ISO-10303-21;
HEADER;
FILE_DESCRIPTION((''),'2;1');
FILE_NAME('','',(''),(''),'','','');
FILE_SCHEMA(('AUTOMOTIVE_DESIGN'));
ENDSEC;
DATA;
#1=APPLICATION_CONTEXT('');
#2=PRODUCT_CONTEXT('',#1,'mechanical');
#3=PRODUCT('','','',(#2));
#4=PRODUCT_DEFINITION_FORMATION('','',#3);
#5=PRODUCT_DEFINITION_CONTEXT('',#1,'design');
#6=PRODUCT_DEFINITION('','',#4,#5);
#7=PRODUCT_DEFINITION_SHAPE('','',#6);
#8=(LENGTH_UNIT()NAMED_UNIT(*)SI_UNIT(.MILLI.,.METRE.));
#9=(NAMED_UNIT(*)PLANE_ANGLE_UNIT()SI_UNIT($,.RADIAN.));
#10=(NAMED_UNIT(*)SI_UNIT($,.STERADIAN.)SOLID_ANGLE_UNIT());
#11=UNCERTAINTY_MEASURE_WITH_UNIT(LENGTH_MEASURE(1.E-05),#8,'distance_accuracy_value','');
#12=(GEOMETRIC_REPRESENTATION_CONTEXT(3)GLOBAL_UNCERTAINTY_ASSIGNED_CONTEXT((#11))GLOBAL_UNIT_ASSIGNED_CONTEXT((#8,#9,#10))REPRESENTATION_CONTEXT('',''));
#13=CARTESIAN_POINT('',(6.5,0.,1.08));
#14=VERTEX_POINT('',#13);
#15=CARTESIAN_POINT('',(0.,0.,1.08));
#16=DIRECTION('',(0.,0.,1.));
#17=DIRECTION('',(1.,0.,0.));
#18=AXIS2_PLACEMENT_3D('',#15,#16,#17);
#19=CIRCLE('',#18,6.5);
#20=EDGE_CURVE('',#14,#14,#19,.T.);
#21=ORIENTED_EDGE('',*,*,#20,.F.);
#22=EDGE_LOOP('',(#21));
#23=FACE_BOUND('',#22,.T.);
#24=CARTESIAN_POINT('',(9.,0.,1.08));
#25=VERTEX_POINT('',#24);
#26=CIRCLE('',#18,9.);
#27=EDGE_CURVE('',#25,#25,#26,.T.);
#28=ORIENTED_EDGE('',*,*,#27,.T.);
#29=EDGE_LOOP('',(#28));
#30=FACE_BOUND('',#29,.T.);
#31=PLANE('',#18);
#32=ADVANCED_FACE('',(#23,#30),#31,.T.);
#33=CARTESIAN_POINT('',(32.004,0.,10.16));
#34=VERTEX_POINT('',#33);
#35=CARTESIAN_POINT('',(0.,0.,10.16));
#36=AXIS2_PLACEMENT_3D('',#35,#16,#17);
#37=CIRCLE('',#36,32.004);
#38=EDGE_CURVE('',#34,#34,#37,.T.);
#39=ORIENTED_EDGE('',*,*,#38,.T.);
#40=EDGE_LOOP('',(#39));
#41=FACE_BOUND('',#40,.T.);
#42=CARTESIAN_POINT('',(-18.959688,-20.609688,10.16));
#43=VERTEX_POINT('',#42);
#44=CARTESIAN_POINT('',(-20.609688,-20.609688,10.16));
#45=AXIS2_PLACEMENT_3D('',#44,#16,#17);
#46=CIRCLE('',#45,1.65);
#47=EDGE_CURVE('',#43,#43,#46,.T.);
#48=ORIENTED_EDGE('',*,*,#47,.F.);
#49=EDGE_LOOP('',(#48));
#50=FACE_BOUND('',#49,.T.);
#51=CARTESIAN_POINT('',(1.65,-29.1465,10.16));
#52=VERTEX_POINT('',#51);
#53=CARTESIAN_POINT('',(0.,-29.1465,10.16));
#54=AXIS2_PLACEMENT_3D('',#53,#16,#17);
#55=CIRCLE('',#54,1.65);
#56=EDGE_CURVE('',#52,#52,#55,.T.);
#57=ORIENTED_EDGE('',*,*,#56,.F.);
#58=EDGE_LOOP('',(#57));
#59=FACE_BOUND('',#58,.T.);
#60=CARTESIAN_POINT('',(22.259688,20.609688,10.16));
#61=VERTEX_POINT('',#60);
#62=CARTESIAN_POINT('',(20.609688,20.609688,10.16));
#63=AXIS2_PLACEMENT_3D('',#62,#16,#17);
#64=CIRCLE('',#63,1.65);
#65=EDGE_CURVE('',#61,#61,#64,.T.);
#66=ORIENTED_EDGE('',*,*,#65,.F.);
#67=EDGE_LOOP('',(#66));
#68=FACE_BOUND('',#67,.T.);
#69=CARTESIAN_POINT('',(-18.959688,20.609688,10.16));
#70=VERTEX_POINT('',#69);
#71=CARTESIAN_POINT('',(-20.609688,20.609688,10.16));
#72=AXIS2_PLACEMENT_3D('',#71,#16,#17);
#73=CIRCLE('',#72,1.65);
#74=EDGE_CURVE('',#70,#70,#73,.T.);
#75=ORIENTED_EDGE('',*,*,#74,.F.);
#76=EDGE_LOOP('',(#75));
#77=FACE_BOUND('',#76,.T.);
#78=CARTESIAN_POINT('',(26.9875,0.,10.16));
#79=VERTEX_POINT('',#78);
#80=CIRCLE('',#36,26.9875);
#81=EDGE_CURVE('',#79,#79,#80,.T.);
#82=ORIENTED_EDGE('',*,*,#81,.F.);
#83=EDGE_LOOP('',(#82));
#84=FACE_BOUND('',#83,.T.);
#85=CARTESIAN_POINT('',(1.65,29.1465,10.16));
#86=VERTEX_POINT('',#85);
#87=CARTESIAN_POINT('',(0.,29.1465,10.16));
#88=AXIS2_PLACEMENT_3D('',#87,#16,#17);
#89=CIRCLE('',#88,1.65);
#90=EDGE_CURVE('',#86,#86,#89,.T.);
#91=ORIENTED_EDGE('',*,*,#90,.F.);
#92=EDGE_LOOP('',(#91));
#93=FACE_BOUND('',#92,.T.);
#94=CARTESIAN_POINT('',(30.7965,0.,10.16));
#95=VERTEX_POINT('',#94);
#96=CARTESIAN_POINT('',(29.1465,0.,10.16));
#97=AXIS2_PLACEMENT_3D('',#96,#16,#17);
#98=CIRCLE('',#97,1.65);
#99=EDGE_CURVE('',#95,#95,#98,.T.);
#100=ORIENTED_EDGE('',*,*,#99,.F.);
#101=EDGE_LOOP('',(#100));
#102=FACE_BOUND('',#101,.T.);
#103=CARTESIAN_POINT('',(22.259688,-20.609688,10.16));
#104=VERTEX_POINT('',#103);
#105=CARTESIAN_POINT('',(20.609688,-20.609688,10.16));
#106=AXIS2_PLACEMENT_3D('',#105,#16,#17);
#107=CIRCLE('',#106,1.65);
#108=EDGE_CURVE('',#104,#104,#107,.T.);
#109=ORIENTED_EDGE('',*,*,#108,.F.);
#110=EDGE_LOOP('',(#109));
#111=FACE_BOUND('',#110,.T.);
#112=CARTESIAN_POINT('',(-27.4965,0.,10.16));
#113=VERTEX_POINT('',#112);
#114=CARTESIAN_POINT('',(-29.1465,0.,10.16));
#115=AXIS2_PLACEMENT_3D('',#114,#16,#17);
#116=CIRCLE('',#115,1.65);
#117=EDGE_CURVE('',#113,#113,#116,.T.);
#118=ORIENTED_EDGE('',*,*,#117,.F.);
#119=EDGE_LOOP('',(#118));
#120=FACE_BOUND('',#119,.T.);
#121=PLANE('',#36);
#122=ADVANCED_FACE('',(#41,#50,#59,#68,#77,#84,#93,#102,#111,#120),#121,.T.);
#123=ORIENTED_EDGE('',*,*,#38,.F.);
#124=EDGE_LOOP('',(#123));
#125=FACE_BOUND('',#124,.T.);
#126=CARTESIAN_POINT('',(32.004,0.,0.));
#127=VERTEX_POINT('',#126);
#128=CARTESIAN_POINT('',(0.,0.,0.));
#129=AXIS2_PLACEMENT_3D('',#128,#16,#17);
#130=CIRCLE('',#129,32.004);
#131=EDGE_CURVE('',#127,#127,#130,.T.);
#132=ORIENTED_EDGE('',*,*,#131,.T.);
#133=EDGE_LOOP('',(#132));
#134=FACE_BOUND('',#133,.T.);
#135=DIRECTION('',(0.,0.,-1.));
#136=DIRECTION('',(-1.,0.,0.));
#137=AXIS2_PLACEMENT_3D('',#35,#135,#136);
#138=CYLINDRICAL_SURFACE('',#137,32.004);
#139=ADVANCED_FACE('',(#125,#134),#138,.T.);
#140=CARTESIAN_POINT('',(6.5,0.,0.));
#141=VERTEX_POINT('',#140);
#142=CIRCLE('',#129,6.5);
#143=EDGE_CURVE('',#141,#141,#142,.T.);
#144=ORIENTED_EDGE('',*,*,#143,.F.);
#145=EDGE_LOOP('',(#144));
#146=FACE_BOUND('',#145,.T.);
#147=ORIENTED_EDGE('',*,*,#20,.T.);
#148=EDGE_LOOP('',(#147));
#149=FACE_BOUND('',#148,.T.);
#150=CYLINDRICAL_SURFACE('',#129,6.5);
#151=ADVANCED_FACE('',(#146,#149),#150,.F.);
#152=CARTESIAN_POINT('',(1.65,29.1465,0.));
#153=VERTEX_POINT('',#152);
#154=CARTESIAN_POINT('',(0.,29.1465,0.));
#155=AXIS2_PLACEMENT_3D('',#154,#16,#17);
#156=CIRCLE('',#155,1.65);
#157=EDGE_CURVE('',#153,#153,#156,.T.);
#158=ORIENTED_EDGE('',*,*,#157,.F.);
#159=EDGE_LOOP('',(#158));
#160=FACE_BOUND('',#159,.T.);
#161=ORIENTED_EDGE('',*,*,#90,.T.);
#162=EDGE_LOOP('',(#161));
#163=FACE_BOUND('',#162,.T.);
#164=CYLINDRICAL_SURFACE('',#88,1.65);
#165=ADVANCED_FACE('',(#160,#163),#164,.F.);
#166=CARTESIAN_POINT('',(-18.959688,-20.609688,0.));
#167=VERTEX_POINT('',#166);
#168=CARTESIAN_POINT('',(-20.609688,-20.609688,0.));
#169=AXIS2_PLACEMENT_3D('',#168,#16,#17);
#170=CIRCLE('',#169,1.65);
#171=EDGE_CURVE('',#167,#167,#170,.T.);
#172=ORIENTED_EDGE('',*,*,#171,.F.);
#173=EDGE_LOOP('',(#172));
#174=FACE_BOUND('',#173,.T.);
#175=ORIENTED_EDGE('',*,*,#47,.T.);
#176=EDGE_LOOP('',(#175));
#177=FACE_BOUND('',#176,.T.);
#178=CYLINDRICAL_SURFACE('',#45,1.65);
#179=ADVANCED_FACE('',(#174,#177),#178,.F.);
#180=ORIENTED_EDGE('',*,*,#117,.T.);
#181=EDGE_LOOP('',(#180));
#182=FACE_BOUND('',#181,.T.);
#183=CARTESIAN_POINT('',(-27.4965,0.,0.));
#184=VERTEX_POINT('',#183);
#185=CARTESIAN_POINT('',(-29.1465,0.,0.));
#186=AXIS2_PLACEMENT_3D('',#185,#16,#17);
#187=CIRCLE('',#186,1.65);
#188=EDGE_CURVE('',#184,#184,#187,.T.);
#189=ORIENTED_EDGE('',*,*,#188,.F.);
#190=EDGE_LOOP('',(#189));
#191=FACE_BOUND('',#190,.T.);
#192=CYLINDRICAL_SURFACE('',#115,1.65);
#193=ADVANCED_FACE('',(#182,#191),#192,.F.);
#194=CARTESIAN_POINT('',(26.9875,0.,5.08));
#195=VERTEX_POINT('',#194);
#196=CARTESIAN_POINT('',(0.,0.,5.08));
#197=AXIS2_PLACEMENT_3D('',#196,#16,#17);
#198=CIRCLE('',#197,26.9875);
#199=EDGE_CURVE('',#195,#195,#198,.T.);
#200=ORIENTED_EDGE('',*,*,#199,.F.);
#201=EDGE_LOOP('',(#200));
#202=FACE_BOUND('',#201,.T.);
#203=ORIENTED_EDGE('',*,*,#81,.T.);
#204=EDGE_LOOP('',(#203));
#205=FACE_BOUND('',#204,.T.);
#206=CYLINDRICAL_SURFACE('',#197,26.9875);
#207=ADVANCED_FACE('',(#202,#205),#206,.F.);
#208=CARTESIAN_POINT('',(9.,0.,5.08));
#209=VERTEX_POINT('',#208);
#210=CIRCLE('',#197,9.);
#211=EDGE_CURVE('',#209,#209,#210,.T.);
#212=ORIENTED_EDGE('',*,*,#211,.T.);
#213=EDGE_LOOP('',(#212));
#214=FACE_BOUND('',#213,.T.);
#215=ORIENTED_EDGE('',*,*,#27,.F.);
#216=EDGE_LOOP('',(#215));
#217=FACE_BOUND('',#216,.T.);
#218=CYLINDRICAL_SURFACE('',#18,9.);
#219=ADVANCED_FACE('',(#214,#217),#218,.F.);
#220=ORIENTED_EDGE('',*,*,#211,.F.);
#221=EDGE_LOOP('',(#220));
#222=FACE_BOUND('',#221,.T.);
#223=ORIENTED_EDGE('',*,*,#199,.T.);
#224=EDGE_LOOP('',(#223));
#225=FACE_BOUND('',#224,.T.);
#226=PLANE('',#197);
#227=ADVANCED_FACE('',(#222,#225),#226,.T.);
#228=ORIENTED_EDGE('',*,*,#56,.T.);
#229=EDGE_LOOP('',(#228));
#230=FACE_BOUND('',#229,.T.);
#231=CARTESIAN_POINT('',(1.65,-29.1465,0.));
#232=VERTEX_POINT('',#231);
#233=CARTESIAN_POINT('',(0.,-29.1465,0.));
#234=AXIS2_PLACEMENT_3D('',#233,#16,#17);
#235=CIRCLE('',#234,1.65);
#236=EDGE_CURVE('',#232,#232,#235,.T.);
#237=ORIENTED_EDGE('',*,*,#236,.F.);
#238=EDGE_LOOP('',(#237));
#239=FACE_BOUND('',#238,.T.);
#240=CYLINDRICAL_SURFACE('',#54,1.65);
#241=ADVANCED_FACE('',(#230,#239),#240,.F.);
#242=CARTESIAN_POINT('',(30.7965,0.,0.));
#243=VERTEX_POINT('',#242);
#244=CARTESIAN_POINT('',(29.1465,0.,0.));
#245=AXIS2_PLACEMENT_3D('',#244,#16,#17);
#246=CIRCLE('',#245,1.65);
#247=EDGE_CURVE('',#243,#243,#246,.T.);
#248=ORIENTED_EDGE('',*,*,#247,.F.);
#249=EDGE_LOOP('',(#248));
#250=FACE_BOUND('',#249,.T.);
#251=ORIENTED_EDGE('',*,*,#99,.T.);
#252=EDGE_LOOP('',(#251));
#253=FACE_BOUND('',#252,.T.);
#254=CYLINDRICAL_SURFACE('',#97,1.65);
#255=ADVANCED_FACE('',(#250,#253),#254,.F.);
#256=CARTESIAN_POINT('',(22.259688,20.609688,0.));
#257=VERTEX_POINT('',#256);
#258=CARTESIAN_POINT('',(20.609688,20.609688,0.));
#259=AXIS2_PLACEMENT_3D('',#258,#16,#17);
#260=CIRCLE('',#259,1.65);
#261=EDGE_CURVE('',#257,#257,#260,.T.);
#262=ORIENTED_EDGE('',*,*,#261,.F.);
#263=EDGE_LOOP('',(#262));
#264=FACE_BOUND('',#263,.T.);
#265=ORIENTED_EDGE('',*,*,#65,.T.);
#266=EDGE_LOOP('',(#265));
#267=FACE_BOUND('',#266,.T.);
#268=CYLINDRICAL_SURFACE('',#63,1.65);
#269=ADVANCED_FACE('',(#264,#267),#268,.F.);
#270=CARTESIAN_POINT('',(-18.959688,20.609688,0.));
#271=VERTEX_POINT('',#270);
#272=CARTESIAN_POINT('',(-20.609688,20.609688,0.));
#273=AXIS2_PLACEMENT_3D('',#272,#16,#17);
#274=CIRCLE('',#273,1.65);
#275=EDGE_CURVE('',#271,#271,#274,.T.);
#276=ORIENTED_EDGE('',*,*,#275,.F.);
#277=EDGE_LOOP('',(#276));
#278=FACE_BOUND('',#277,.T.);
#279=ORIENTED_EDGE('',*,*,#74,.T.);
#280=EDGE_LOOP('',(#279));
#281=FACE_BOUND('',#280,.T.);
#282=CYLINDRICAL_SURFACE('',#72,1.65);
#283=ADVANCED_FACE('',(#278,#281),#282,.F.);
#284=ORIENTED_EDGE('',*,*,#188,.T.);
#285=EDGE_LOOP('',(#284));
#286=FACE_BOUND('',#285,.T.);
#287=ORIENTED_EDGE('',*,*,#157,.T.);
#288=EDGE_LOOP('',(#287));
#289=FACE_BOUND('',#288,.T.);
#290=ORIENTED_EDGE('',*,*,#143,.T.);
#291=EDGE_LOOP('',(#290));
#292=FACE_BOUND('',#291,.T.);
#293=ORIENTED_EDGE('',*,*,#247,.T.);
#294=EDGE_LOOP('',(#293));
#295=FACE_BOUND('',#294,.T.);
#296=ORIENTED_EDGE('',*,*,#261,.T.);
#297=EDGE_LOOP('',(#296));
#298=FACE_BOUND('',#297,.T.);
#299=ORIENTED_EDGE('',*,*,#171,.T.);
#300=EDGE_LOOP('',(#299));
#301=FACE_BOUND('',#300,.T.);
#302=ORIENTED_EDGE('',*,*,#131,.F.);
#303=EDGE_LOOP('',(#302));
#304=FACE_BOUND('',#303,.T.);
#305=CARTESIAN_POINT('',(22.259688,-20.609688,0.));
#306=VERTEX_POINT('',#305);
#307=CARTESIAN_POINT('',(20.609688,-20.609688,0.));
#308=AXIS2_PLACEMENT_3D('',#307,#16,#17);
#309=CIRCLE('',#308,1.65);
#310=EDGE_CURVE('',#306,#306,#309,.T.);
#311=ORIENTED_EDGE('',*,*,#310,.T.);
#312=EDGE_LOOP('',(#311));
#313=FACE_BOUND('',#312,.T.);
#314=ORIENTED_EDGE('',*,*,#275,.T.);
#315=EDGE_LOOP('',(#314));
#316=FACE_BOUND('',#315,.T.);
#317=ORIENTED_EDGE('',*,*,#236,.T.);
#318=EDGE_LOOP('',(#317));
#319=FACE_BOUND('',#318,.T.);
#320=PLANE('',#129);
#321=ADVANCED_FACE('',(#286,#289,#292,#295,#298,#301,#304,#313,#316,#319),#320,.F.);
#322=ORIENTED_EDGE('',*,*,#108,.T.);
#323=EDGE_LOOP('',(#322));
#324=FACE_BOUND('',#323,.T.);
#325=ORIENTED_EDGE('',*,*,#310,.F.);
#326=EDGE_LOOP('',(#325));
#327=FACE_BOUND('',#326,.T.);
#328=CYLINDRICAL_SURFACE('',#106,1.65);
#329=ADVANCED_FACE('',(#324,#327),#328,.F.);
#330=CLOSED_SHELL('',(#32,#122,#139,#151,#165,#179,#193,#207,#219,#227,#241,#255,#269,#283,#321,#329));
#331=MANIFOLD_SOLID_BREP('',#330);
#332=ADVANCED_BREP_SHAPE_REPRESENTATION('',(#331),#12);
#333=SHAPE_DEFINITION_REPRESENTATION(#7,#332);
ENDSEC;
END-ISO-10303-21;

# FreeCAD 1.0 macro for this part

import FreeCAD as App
import Part
import Sketcher

V = App.Vector
Q = App.Units.Quantity

doc = App.newDocument("Part")
body = doc.addObject("PartDesign::Body", "Body")

# Sketch on XY plane
sketch1 = body.newObject("Sketcher::SketchObject", "Sketch")
sketch1.AttachmentSupport = (doc.getObject("XY_Plane"), [""])
sketch1.MapMode = "FlatFace"
sketch1.addGeometry(Part.Circle(V(0, 0, 0), V(0, 0, 1), 32), False)
sketch1.addConstraint([
    Sketcher.Constraint("Coincident", 0, 3, -1, 1),
    Sketcher.Constraint("Diameter", 0, Q("64.008 mm")),
])
pad1 = body.newObject("PartDesign::Pad", "Pad")
pad1.Profile = sketch1
pad1.Length = 10.16

# Sketch on XY plane
sketch2 = body.newObject("Sketcher::SketchObject", "Sketch001")
sketch2.AttachmentSupport = (doc.getObject("XY_Plane"), [""])
sketch2.MapMode = "FlatFace"
sketch2.AttachmentOffset = App.Placement(V(0, 0, 10.16), App.Rotation())
sketch2.addGeometry(Part.Circle(V(0, 0, 0), V(0, 0, 1), 27), False)
sketch2.addConstraint([
    Sketcher.Constraint("Coincident", 0, 3, -1, 1),
    Sketcher.Constraint("Diameter", 0, Q("53.975 mm")),
])
pocket1 = body.newObject("PartDesign::Pocket", "Pocket")
pocket1.Profile = sketch2
pocket1.Length = 5.08

# Sketch on XY plane
sketch3 = body.newObject("Sketcher::SketchObject", "Sketch002")
sketch3.AttachmentSupport = (doc.getObject("XY_Plane"), [""])
sketch3.MapMode = "FlatFace"
sketch3.AttachmentOffset = App.Placement(V(0, 0, 5.08), App.Rotation())
sketch3.addGeometry(Part.Circle(V(0, 0, 0), V(0, 0, 1), 9), False)
sketch3.addConstraint([
    Sketcher.Constraint("Coincident", 0, 3, -1, 1),
    Sketcher.Constraint("Diameter", 0, Q("18 mm")),
])
pocket2 = body.newObject("PartDesign::Pocket", "Pocket001")
pocket2.Profile = sketch3
pocket2.Length = 4

# Sketch on XY plane
sketch4 = body.newObject("Sketcher::SketchObject", "Sketch003")
sketch4.AttachmentSupport = (doc.getObject("XY_Plane"), [""])
sketch4.MapMode = "FlatFace"
sketch4.AttachmentOffset = App.Placement(V(0, 0, 1.08), App.Rotation())
sketch4.addGeometry(Part.Circle(V(0, 0, 0), V(0, 0, 1), 6), False)
sketch4.addConstraint([
    Sketcher.Constraint("Coincident", 0, 3, -1, 1),
    Sketcher.Constraint("Diameter", 0, Q("13 mm")),
])
pocket3 = body.newObject("PartDesign::Pocket", "Pocket002")
pocket3.Profile = sketch4
pocket3.Type = "ThroughAll"

# Sketch on XY plane
sketch5 = body.newObject("Sketcher::SketchObject", "Sketch004")
sketch5.AttachmentSupport = (doc.getObject("XY_Plane"), [""])
sketch5.MapMode = "FlatFace"
sketch5.AttachmentOffset = App.Placement(V(0, 0, 10.16), App.Rotation())
sketch5.addGeometry([
    Part.Circle(V(-20.6, 20.6, 0), V(0, 0, 1), 1.6),  # 0
    Part.Circle(V(0, 29.1, 0), V(0, 0, 1), 1.6),  # 1
    Part.Circle(V(20.6, 20.6, 0), V(0, 0, 1), 1.6),  # 2
    Part.Circle(V(29.1, 0, 0), V(0, 0, 1), 1.6),  # 3
    Part.Circle(V(20.6, -20.6, 0), V(0, 0, 1), 1.6),  # 4
    Part.Circle(V(0, -29.1, 0), V(0, 0, 1), 1.6),  # 5
    Part.Circle(V(-20.6, -20.6, 0), V(0, 0, 1), 1.6),  # 6
    Part.Circle(V(-29.1, 0, 0), V(0, 0, 1), 1.6),  # 7
], False)
sketch5.addConstraint([
    Sketcher.Constraint("Equal", 0, 1),
    Sketcher.Constraint("Equal", 1, 2),
    Sketcher.Constraint("Equal", 2, 3),
    Sketcher.Constraint("Equal", 3, 4),
    Sketcher.Constraint("Equal", 4, 5),
    Sketcher.Constraint("Equal", 5, 6),
    Sketcher.Constraint("Equal", 6, 7),
    Sketcher.Constraint("Symmetric", 0, 3, 4, 3, -1, 1),
    Sketcher.Constraint("Symmetric", 1, 3, 5, 3, -1, 1),
    Sketcher.Constraint("Symmetric", 2, 3, 6, 3, -1, 1),
    Sketcher.Constraint("Symmetric", 3, 3, 7, 3, -1, 1),
    Sketcher.Constraint("Symmetric", 0, 3, 2, 3, -2),
    Sketcher.Constraint("PointOnObject", 1, 3, -2),
    Sketcher.Constraint("PointOnObject", 3, 3, -1),
    Sketcher.Constraint("Diameter", 0, Q("3.3 mm")),
    Sketcher.Constraint("DistanceY", 5, 3, 1, 3, Q("58.293 mm")),
    Sketcher.Constraint("DistanceX", -1, 1, 3, 3, Q("29.1465 mm")),
    Sketcher.Constraint("DistanceX", 0, 3, -1, 1, Q("20.609688 mm")),
    Sketcher.Constraint("DistanceY", -1, 1, 0, 3, Q("20.609688 mm")),
])
doc.recompute()
hole = body.newObject("PartDesign::Hole", "Hole")
hole.Profile = sketch5
hole.ThreadType = "None"
hole.Diameter = 3.3
hole.DepthType = "ThroughAll"

doc.recompute()
